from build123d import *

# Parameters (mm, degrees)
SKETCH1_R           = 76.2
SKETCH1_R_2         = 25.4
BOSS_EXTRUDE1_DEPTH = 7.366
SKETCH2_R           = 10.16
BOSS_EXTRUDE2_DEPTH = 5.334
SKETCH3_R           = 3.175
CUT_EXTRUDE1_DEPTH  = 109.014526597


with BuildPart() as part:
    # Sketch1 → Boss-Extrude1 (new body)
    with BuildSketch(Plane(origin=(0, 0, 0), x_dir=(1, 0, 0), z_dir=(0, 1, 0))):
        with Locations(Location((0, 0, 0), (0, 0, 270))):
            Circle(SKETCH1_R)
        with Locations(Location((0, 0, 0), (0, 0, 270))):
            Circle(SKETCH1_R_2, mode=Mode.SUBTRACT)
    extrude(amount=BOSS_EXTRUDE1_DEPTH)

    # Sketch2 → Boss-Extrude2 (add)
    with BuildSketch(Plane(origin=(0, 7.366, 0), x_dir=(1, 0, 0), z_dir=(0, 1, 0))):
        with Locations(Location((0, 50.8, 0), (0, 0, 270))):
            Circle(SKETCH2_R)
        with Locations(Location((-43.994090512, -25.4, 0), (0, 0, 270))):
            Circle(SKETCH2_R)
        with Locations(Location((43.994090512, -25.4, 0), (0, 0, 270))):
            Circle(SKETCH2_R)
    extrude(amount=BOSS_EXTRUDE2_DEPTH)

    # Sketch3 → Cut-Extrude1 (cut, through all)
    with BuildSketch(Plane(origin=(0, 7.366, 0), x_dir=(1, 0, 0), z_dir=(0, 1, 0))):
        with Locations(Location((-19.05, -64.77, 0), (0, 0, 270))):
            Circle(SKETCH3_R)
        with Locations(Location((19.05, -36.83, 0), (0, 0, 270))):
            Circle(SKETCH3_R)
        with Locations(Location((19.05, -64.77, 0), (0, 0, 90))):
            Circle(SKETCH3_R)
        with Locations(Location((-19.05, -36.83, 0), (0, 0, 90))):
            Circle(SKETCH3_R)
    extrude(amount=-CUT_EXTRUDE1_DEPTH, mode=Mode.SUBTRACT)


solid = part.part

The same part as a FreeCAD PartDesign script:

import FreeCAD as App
import Part
import Sketcher
Q = App.Units.Quantity

doc = App.newDocument("Part")
body = doc.addObject("PartDesign::Body", "Body")

# Sketch on XZ plane
sketch1 = doc.addObject("Sketcher::SketchObject", "Sketch")
body.addObject(sketch1)
sketch1.AttachmentSupport = (doc.XZ_Plane, [""])
sketch1.MapMode = "FlatFace"
sketch1.addGeometry([
    Part.Circle(App.Vector(0, 0, 0), App.Vector(0, 0, 1), 76.2),
    Part.Circle(App.Vector(0, 0, 0), App.Vector(0, 0, 1), 25.4),
], False)
sketch1.addConstraint([
    Sketcher.Constraint("Coincident", 0, 3, -1, 1),
    Sketcher.Constraint("Coincident", 1, 3, -1, 1),
    Sketcher.Constraint("Diameter", 0, Q("6 in")),
    Sketcher.Constraint("Diameter", 1, Q("2 in")),
])
pad1 = doc.addObject("PartDesign::Pad", "Pad")
body.addObject(pad1)
pad1.Profile = sketch1
pad1.Length = Q("0.29 in")
pad1.Reversed = True

# Sketch on XZ plane
sketch2 = doc.addObject("Sketcher::SketchObject", "Sketch001")
body.addObject(sketch2)
sketch2.AttachmentSupport = (doc.XZ_Plane, [""])
sketch2.MapMode = "FlatFace"
sketch2.AttachmentOffset = App.Placement(App.Vector(0, 0, -0.29 * 25.4), App.Rotation())
sketch2.addGeometry([
    Part.Circle(App.Vector(0, -50.8, 0), App.Vector(0, 0, 1), 10.16),
    Part.Circle(App.Vector(-43.994091, 25.4, 0), App.Vector(0, 0, 1), 10.16),
    Part.Circle(App.Vector(43.994091, 25.4, 0), App.Vector(0, 0, 1), 10.16),
], False)
sketch2.addConstraint([
    Sketcher.Constraint("Equal", 0, 1),
    Sketcher.Constraint("Equal", 1, 2),
    Sketcher.Constraint("Symmetric", 1, 3, 2, 3, -2),
    Sketcher.Constraint("PointOnObject", 0, 3, -2),
    Sketcher.Constraint("Diameter", 0, Q("0.8 in")),
    Sketcher.Constraint("DistanceY", 0, 3, -1, 1, Q("2 in")),
    Sketcher.Constraint("DistanceY", -1, 1, 1, 3, Q("1 in")),
    Sketcher.Constraint("DistanceX", 1, 3, -1, 1, 43.994091),
])
pad2 = doc.addObject("PartDesign::Pad", "Pad001")
body.addObject(pad2)
pad2.Profile = sketch2
pad2.Length = Q("0.21 in")
pad2.Reversed = True

# Sketch on XZ plane
sketch3 = doc.addObject("Sketcher::SketchObject", "Sketch002")
body.addObject(sketch3)
sketch3.AttachmentSupport = (doc.XZ_Plane, [""])
sketch3.MapMode = "FlatFace"
sketch3.AttachmentOffset = App.Placement(App.Vector(0, 0, -0.29 * 25.4), App.Rotation())
sketch3.addGeometry([
    Part.Circle(App.Vector(-19.05, 64.77, 0), App.Vector(0, 0, 1), 3.175),
    Part.Circle(App.Vector(19.05, 36.83, 0), App.Vector(0, 0, 1), 3.175),
    Part.Circle(App.Vector(19.05, 64.77, 0), App.Vector(0, 0, 1), 3.175),
    Part.Circle(App.Vector(-19.05, 36.83, 0), App.Vector(0, 0, 1), 3.175),
], False)
sketch3.addConstraint([
    Sketcher.Constraint("Equal", 0, 1),
    Sketcher.Constraint("Equal", 1, 2),
    Sketcher.Constraint("Equal", 2, 3),
    Sketcher.Constraint("Symmetric", 0, 3, 2, 3, -2),
    Sketcher.Constraint("Symmetric", 1, 3, 3, 3, -2),
    Sketcher.Constraint("Vertical", 1, 3, 2, 3),
    Sketcher.Constraint("Diameter", 0, Q("0.25 in")),
    Sketcher.Constraint("DistanceX", 0, 3, 1, 3, Q("1.5 in")),
    Sketcher.Constraint("DistanceY", 1, 3, 0, 3, Q("1.1 in")),
    Sketcher.Constraint("DistanceY", -1, 1, 0, 3, Q("2.55 in")),
])
pocket1 = doc.addObject("PartDesign::Pocket", "Pocket")
body.addObject(pocket1)
pocket1.Profile = sketch3
pocket1.Type = "ThroughAll"
pocket1.Reversed = True

doc.recompute()
